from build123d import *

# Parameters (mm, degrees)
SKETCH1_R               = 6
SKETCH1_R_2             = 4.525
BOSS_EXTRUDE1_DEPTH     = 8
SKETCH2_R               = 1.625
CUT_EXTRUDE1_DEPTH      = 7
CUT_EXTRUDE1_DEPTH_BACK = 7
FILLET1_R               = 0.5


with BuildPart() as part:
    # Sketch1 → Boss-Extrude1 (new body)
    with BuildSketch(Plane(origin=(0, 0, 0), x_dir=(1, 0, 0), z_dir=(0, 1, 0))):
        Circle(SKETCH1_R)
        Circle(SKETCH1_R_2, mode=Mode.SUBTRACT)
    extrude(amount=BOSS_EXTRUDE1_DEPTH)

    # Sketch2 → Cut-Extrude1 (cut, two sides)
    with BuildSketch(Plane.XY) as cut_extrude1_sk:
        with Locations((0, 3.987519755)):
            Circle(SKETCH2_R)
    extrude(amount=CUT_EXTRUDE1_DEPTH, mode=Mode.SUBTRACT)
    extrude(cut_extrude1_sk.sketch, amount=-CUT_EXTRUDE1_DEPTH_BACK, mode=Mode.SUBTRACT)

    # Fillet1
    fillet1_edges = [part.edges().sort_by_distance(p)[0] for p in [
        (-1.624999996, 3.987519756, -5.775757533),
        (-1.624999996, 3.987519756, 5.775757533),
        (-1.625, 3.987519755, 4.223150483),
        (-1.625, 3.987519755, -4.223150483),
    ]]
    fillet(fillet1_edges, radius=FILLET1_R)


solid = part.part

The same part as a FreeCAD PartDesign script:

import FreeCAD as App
import Part
import Sketcher
from FreeCAD import Vector
Q = App.Units.Quantity


def edges_at(feature, points):
    """Names of the edges that pass closest to the given points."""
    edges = feature.Shape.Edges
    near = lambda p: min(range(len(edges)), key=lambda i: edges[i].distToShape(Part.Vertex(*p))[0])
    return sorted({f"Edge{near(p) + 1}" for p in points})

doc = App.newDocument("Part")
params = doc.addObject("Spreadsheet::Sheet", "Params")
for row, (alias, value) in enumerate([
    ("sketch1_diameter", "12 mm"),
    ("sketch1_diameter2", "9.05 mm"),
    ("pad1_length", "8 mm"),
    ("sketch2_diameter", "3.25 mm"),
    ("fillet_radius", "0.5 mm"),
], start=1):
    params.set(f"A{row}", alias)
    params.set(f"B{row}", "=" + value)
    params.setAlias(f"B{row}", alias)

body = doc.addObject("PartDesign::Body", "Body")

sketch1 = doc.addObject("Sketcher::SketchObject", "Sketch")
body.addObject(sketch1)
sketch1.AttachmentSupport = (doc.XZ_Plane, [""])
sketch1.MapMode = "FlatFace"
sketch1.addGeometry([
    Part.Circle(Vector(0, 0, 0), Vector(0, 0, 1), 6),
    Part.Circle(Vector(0, 0, 0), Vector(0, 0, 1), 4.5),
], False)
sketch1.addConstraint([
    Sketcher.Constraint("Coincident", 0, 3, -1, 1),
    Sketcher.Constraint("Coincident", 1, 3, -1, 1),
    Sketcher.Constraint("Diameter", 0, Q("12 mm")),
    Sketcher.Constraint("Diameter", 1, Q("9.05 mm")),
])
sketch1.setExpression("Constraints[2]", "Params.sketch1_diameter")
sketch1.setExpression("Constraints[3]", "Params.sketch1_diameter2")
pad1 = doc.addObject("PartDesign::Pad", "Pad")
body.addObject(pad1)
pad1.Profile = sketch1
pad1.setExpression("Length", "Params.pad1_length")
pad1.Reversed = True

sketch2 = doc.addObject("Sketcher::SketchObject", "Sketch001")
body.addObject(sketch2)
sketch2.AttachmentSupport = (doc.XY_Plane, [""])
sketch2.MapMode = "FlatFace"
sketch2.addGeometry(Part.Circle(Vector(0, 4, 0), Vector(0, 0, 1), 1.6), False)
sketch2.addConstraint([
    Sketcher.Constraint("PointOnObject", 0, 3, -2),
    Sketcher.Constraint("Diameter", 0, Q("3.25 mm")),
    Sketcher.Constraint("DistanceY", -1, 1, 0, 3, Q("3.98752 mm")),
])
sketch2.setExpression("Constraints[1]", "Params.sketch2_diameter")
pocket1 = doc.addObject("PartDesign::Pocket", "Pocket")
body.addObject(pocket1)
pocket1.Profile = sketch2
pocket1.Type = "ThroughAll"
pocket1.Midplane = True
doc.recompute()

fillet = doc.addObject("PartDesign::Fillet", "Fillet")
body.addObject(fillet)
fillet.Base = (pocket1, edges_at(pocket1, [
    (-1.625, 3.988, -5.776),
    (-1.625, 3.988, 5.776),
    (-1.625, 3.988, 4.223),
    (-1.625, 3.988, -4.223),
]))
fillet.setExpression("Radius", "Params.fillet_radius")

doc.recompute()
